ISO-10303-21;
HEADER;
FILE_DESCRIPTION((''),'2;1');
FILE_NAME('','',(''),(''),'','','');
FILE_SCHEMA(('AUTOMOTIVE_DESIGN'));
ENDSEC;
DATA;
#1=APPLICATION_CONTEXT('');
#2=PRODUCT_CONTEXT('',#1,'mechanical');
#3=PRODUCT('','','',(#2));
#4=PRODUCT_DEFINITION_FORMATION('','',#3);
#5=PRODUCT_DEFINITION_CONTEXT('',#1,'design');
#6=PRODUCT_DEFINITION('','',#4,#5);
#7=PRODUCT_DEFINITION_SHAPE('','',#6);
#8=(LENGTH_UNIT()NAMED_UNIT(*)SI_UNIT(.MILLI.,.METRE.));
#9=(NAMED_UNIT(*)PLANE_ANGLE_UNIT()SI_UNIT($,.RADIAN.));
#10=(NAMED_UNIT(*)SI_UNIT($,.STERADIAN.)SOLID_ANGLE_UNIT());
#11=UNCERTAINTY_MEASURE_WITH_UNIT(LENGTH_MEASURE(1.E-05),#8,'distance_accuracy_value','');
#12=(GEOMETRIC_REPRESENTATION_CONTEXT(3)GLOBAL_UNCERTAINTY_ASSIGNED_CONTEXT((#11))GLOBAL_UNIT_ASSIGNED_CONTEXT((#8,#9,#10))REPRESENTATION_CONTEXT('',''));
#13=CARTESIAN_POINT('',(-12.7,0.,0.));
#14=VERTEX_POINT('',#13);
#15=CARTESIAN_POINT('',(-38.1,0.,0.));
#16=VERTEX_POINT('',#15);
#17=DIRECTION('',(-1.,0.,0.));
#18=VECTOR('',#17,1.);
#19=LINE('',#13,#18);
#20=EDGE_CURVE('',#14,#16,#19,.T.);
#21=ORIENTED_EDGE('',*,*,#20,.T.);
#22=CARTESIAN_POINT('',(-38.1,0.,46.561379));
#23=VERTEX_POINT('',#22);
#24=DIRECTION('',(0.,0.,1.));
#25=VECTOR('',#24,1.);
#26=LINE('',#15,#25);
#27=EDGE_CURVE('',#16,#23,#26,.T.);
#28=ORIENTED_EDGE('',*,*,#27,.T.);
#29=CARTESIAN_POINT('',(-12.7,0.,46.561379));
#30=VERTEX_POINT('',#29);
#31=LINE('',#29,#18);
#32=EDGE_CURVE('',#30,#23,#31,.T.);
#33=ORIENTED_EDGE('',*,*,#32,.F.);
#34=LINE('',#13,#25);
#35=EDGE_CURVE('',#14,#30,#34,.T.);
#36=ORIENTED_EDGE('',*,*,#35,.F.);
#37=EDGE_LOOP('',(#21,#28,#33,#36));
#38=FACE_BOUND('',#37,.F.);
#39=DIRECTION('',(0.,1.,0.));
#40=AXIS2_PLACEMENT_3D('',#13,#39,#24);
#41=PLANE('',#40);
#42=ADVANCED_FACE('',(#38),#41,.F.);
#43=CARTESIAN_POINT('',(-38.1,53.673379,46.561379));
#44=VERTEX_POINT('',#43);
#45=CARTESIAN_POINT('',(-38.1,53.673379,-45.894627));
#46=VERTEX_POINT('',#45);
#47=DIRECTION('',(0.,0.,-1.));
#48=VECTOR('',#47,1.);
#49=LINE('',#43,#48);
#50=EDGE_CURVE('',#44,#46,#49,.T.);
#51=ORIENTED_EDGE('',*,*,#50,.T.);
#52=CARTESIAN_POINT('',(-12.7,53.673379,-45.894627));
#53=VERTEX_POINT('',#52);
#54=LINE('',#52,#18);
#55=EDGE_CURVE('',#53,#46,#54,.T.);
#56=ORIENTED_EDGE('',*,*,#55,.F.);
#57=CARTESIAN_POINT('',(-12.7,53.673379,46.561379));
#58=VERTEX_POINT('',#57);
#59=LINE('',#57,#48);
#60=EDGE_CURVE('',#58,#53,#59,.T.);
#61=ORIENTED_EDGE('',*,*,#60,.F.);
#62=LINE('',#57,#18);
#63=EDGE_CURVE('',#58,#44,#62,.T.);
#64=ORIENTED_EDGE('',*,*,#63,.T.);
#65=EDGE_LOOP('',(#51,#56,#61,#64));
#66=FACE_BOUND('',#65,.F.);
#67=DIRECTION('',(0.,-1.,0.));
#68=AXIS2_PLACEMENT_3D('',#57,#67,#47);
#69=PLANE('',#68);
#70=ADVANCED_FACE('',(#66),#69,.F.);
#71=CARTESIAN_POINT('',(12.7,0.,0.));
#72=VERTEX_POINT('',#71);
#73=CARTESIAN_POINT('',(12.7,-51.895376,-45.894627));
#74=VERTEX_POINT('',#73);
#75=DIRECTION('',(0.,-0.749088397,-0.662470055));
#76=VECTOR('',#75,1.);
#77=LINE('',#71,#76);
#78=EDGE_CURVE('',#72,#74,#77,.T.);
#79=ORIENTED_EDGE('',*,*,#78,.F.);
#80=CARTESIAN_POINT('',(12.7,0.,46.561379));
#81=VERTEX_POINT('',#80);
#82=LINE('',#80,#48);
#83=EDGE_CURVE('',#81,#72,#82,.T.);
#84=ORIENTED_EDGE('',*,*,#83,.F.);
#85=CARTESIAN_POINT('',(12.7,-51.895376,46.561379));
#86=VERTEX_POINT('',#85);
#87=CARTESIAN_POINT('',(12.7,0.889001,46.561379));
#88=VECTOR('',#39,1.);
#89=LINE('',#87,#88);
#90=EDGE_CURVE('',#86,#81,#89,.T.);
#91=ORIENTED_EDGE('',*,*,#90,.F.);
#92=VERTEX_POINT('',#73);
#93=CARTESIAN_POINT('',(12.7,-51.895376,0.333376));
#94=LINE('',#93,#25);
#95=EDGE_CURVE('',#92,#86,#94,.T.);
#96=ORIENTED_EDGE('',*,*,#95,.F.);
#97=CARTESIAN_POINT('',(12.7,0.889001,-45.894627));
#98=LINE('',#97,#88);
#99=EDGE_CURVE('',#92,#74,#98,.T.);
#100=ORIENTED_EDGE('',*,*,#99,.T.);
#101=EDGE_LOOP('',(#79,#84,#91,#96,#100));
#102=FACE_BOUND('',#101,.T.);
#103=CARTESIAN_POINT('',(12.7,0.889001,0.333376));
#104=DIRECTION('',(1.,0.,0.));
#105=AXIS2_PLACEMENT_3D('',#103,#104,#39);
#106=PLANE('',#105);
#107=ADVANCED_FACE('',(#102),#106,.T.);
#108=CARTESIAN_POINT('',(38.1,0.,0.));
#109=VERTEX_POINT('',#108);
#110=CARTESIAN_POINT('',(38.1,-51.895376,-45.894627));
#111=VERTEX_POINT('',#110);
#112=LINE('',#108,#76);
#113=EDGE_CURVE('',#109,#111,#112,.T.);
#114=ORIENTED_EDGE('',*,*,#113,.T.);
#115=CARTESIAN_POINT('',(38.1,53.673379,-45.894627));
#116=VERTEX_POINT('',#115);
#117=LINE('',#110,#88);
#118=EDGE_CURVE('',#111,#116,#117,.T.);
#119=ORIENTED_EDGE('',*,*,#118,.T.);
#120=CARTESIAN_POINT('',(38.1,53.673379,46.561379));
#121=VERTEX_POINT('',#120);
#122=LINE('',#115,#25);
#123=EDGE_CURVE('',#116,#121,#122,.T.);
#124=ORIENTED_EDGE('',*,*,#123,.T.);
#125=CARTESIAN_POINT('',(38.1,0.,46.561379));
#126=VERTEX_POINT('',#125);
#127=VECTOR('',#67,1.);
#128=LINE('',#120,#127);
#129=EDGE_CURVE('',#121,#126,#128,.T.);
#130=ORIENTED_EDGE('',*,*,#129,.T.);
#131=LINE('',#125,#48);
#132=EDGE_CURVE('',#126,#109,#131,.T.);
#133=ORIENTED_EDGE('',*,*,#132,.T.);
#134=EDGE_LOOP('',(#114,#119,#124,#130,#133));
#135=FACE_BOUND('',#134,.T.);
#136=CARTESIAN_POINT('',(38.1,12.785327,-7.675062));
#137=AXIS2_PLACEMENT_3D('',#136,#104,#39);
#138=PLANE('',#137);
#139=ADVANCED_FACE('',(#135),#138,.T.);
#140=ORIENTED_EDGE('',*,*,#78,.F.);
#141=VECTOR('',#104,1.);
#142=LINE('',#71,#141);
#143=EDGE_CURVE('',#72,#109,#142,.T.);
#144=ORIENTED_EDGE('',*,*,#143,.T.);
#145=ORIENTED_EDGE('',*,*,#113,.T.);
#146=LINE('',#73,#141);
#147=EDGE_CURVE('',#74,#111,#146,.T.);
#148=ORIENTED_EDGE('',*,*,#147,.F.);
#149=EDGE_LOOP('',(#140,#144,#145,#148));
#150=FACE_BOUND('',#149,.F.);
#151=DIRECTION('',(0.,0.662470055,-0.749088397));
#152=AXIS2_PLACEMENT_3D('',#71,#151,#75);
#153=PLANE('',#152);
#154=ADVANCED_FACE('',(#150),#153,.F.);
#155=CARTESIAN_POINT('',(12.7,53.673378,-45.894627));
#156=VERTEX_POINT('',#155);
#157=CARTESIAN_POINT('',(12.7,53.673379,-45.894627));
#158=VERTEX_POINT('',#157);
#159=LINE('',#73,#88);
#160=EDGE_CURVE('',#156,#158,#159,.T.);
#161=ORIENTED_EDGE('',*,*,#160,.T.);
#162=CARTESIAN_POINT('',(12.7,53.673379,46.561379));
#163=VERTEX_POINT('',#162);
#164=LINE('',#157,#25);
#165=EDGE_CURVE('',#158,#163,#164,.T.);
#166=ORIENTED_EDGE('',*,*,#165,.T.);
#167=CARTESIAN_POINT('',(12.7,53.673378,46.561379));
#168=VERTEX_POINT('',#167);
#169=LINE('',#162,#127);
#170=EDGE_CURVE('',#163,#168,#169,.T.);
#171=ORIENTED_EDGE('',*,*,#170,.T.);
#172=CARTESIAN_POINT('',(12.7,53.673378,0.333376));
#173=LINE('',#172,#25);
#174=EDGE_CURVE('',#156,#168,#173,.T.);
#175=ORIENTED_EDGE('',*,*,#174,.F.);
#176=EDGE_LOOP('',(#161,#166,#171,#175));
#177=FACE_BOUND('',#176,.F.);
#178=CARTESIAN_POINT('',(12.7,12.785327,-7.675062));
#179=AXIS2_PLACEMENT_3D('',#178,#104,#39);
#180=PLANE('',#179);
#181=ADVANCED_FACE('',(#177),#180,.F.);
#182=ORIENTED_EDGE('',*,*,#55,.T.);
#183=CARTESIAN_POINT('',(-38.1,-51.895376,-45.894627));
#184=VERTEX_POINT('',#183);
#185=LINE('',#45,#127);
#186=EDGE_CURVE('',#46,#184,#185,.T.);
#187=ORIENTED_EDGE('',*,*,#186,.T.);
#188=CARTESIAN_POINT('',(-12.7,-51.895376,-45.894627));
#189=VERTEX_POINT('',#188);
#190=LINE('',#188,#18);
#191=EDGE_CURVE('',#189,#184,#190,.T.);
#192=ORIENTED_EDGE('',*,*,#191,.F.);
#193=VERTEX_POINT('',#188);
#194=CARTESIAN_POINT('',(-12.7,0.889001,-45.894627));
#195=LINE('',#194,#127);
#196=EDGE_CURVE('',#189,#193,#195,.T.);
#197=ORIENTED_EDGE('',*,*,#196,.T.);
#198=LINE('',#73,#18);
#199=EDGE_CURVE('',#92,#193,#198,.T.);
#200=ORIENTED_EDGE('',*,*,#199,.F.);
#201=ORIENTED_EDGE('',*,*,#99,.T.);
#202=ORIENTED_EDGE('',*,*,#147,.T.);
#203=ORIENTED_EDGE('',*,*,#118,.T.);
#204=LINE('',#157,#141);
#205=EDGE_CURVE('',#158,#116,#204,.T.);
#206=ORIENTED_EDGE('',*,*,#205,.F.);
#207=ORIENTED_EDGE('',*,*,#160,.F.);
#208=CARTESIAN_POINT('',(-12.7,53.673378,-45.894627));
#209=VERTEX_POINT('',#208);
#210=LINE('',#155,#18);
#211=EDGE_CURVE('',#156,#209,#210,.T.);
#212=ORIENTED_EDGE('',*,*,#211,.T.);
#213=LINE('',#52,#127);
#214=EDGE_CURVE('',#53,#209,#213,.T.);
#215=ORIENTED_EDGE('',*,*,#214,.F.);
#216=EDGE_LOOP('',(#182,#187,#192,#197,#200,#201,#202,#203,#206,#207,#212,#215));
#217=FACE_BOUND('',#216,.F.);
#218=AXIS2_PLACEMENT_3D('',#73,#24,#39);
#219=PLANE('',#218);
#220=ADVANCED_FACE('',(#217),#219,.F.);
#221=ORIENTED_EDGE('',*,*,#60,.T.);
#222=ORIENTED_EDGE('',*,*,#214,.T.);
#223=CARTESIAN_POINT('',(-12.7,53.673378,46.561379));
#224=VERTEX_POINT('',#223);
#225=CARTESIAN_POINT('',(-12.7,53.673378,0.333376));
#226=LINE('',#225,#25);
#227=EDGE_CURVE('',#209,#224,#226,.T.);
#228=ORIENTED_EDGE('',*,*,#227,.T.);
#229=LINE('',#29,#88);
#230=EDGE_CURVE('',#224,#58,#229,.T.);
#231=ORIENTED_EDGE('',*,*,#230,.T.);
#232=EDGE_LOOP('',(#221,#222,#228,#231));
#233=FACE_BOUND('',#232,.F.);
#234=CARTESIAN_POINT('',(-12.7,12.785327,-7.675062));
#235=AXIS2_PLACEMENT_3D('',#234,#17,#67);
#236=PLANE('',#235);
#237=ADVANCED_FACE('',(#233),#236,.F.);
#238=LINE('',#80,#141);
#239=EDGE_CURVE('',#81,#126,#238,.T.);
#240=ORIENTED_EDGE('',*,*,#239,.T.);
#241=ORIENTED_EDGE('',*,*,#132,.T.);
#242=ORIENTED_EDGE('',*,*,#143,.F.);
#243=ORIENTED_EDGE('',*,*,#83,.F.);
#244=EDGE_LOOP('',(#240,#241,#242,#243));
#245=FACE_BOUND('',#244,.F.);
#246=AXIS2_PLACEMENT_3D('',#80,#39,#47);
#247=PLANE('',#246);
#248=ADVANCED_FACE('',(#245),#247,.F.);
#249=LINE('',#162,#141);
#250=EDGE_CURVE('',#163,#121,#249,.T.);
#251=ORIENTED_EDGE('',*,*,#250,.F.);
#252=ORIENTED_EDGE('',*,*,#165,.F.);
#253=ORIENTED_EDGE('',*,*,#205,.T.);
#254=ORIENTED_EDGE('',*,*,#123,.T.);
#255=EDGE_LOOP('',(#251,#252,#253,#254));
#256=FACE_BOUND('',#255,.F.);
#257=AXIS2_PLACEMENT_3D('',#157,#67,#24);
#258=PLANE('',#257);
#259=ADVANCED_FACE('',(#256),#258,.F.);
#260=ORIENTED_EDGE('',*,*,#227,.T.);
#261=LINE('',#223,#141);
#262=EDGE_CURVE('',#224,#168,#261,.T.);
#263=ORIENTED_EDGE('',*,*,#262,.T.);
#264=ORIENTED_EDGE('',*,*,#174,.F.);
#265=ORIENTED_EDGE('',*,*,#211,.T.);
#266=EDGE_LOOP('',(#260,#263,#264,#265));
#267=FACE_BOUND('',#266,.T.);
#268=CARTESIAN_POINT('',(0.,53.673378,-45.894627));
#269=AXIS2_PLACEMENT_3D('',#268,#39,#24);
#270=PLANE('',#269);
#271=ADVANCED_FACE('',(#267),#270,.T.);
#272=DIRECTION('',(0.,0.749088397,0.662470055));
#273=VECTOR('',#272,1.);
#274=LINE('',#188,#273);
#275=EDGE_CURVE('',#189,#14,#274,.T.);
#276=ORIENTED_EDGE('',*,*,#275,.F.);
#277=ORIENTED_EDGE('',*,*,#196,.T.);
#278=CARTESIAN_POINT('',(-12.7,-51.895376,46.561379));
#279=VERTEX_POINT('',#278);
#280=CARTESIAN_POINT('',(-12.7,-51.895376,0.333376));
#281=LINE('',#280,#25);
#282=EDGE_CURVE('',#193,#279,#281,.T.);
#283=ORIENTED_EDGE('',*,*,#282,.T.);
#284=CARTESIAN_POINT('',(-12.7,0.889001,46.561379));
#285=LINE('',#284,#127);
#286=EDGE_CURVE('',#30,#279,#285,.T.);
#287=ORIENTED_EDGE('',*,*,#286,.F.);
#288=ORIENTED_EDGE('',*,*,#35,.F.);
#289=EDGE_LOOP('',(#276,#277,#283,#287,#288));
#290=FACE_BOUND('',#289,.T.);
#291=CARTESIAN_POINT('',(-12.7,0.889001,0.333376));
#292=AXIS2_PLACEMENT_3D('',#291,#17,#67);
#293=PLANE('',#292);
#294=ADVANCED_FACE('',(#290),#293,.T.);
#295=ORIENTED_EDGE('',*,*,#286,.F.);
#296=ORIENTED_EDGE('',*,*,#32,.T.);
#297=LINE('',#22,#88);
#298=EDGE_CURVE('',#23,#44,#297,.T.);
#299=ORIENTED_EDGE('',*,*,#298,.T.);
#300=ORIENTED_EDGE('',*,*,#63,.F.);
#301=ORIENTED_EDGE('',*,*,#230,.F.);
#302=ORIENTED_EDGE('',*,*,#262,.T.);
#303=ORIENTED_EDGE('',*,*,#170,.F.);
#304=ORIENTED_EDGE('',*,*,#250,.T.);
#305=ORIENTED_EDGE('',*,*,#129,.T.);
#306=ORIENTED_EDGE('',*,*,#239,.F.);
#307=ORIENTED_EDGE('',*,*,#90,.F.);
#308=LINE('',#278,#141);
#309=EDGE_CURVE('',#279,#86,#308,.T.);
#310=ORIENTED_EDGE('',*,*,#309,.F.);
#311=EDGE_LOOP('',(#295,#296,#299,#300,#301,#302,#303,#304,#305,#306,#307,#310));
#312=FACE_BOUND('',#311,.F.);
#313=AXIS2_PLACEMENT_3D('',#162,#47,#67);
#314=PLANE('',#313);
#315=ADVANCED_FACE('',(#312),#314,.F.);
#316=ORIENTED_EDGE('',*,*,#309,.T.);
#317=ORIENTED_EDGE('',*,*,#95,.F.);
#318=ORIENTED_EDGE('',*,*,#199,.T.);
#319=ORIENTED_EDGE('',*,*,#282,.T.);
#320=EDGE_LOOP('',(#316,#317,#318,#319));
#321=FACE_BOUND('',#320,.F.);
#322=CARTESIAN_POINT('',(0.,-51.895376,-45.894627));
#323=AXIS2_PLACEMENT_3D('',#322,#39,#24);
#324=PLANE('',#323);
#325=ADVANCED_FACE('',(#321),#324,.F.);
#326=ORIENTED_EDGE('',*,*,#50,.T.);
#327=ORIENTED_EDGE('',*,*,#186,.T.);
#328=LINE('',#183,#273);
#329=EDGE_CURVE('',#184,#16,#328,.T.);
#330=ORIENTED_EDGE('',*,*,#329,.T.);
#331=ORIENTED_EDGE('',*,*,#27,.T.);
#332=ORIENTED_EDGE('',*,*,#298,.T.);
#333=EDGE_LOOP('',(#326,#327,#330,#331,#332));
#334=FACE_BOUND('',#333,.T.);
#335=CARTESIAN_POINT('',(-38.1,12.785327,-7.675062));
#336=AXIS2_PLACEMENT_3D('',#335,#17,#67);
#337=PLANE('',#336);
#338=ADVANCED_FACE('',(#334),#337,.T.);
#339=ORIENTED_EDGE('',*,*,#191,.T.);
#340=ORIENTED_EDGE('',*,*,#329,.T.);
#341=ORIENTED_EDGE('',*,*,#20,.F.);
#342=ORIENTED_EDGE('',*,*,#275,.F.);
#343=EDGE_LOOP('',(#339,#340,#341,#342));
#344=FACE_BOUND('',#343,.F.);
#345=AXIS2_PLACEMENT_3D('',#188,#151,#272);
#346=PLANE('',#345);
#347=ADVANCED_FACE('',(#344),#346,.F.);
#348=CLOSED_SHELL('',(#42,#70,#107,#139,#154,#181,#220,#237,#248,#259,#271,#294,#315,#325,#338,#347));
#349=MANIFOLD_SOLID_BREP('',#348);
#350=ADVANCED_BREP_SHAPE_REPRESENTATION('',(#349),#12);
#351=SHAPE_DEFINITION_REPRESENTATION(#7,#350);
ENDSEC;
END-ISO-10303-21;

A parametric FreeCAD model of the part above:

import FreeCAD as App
import Part
import Sketcher

V = App.Vector
Q = App.Units.Quantity


def add_polygon(sketch, points):
    """Adds a closed chain of lines whose ends are joined by coincident constraints."""
    first, n = sketch.GeometryCount, len(points)
    for a, b in zip(points, points[1:] + points[:1]):
        sketch.addGeometry(Part.LineSegment(App.Vector(*a, 0), App.Vector(*b, 0)), False)
    for i in range(n):
        sketch.addConstraint(Sketcher.Constraint("Coincident", first + i, 2, first + (i + 1) % n, 1))

doc = App.newDocument("Part")
body = doc.addObject("PartDesign::Body", "Body")

# Sketch on YZ plane
sketch1 = body.newObject("Sketcher::SketchObject", "Sketch")
sketch1.AttachmentSupport = (doc.getObject("YZ_Plane"), [""])
sketch1.MapMode = "FlatFace"
add_polygon(sketch1, [(-52, 47), (-52, -46), (54, -46), (54, 47)])  # lines 0-3
sketch1.addConstraint(Sketcher.Constraint("Vertical", 0))
sketch1.addConstraint(Sketcher.Constraint("Horizontal", 1))
sketch1.addConstraint(Sketcher.Constraint("Vertical", 2))
sketch1.addConstraint(Sketcher.Constraint("Horizontal", 3))
sketch1.addConstraint(Sketcher.Constraint("DistanceX", 1, 1, 1, 2, Q("105.568755 mm")))
sketch1.addConstraint(Sketcher.Constraint("DistanceY", 0, 2, 0, 1, Q("92.456006 mm")))
sketch1.addConstraint(Sketcher.Constraint("DistanceX", -1, 1, 1, 2, Q("53.673378 mm")))
sketch1.addConstraint(Sketcher.Constraint("DistanceY", -1, 1, 2, 2, Q("46.561379 mm")))
pad1 = body.newObject("PartDesign::Pad", "Pad")
pad1.Profile = sketch1
pad1.Length = Q("0.5 in")

# Sketch on YZ plane
sketch2 = body.newObject("Sketcher::SketchObject", "Sketch001")
sketch2.AttachmentSupport = (doc.getObject("YZ_Plane"), [""])
sketch2.MapMode = "FlatFace"
add_polygon(sketch2, [(54, 47), (54, -46), (-52, -46), (-52, 47)])  # lines 0-3
sketch2.addConstraint(Sketcher.Constraint("Vertical", 0))
sketch2.addConstraint(Sketcher.Constraint("Horizontal", 1))
sketch2.addConstraint(Sketcher.Constraint("Vertical", 2))
sketch2.addConstraint(Sketcher.Constraint("Horizontal", 3))
sketch2.addConstraint(Sketcher.Constraint("DistanceX", 1, 2, 1, 1, Q("105.568755 mm")))
sketch2.addConstraint(Sketcher.Constraint("DistanceY", 0, 2, 0, 1, Q("92.456006 mm")))
sketch2.addConstraint(Sketcher.Constraint("DistanceX", -1, 1, 0, 2, Q("53.673378 mm")))
sketch2.addConstraint(Sketcher.Constraint("DistanceY", -1, 1, 2, 2, Q("46.561379 mm")))
pad2 = body.newObject("PartDesign::Pad", "Pad001")
pad2.Profile = sketch2
pad2.Length = Q("0.5 in")
pad2.Reversed = True

# Sketch on YZ plane
sketch3 = body.newObject("Sketcher::SketchObject", "Sketch002")
sketch3.AttachmentSupport = (doc.getObject("YZ_Plane"), [""])
sketch3.MapMode = "FlatFace"
sketch3.AttachmentOffset = App.Placement(V(0, 0, -0.5 * 25.4), App.Rotation())
add_polygon(sketch3, [(-52, -46), (0, 0), (0, 47), (54, 47), (54, -46)])  # lines 0-4
sketch3.addConstraint(Sketcher.Constraint("Vertical", 1))
sketch3.addConstraint(Sketcher.Constraint("Horizontal", 2))
sketch3.addConstraint(Sketcher.Constraint("Vertical", 3))
sketch3.addConstraint(Sketcher.Constraint("Horizontal", 4))
sketch3.addConstraint(Sketcher.Constraint("Coincident", 0, 2, -1, 1))
sketch3.addConstraint(Sketcher.Constraint("DistanceX", 2, 1, 2, 2, Q("53.673379 mm")))
sketch3.addConstraint(Sketcher.Constraint("DistanceY", 1, 1, 1, 2, Q("46.561379 mm")))
sketch3.addConstraint(Sketcher.Constraint("Distance", 0, Q("69.27804 mm")))
sketch3.addConstraint(Sketcher.Constraint("DistanceX", 4, 2, 4, 1, Q("105.568755 mm")))
pad3 = body.newObject("PartDesign::Pad", "Pad002")
pad3.Profile = sketch3
pad3.Length = Q("1 in")
pad3.Reversed = True

# Sketch on YZ plane
sketch4 = body.newObject("Sketcher::SketchObject", "Sketch003")
sketch4.AttachmentSupport = (doc.getObject("YZ_Plane"), [""])
sketch4.MapMode = "FlatFace"
sketch4.AttachmentOffset = App.Placement(V(0, 0, 0.5 * 25.4), App.Rotation())
add_polygon(sketch4, [(0, 47), (0, 0), (-52, -46), (54, -46), (54, 47)])  # lines 0-4
sketch4.addConstraint(Sketcher.Constraint("Vertical", 0))
sketch4.addConstraint(Sketcher.Constraint("Horizontal", 2))
sketch4.addConstraint(Sketcher.Constraint("Vertical", 3))
sketch4.addConstraint(Sketcher.Constraint("Horizontal", 4))
sketch4.addConstraint(Sketcher.Constraint("Coincident", 0, 2, -1, 1))
sketch4.addConstraint(Sketcher.Constraint("DistanceX", 4, 2, 4, 1, Q("53.673379 mm")))
sketch4.addConstraint(Sketcher.Constraint("DistanceY", 0, 2, 0, 1, Q("46.561379 mm")))
sketch4.addConstraint(Sketcher.Constraint("Distance", 1, Q("69.27804 mm")))
sketch4.addConstraint(Sketcher.Constraint("DistanceX", 2, 1, 2, 2, Q("105.568755 mm")))
pad4 = body.newObject("PartDesign::Pad", "Pad003")
pad4.Profile = sketch4
pad4.Length = Q("1 in")

doc.recompute()
